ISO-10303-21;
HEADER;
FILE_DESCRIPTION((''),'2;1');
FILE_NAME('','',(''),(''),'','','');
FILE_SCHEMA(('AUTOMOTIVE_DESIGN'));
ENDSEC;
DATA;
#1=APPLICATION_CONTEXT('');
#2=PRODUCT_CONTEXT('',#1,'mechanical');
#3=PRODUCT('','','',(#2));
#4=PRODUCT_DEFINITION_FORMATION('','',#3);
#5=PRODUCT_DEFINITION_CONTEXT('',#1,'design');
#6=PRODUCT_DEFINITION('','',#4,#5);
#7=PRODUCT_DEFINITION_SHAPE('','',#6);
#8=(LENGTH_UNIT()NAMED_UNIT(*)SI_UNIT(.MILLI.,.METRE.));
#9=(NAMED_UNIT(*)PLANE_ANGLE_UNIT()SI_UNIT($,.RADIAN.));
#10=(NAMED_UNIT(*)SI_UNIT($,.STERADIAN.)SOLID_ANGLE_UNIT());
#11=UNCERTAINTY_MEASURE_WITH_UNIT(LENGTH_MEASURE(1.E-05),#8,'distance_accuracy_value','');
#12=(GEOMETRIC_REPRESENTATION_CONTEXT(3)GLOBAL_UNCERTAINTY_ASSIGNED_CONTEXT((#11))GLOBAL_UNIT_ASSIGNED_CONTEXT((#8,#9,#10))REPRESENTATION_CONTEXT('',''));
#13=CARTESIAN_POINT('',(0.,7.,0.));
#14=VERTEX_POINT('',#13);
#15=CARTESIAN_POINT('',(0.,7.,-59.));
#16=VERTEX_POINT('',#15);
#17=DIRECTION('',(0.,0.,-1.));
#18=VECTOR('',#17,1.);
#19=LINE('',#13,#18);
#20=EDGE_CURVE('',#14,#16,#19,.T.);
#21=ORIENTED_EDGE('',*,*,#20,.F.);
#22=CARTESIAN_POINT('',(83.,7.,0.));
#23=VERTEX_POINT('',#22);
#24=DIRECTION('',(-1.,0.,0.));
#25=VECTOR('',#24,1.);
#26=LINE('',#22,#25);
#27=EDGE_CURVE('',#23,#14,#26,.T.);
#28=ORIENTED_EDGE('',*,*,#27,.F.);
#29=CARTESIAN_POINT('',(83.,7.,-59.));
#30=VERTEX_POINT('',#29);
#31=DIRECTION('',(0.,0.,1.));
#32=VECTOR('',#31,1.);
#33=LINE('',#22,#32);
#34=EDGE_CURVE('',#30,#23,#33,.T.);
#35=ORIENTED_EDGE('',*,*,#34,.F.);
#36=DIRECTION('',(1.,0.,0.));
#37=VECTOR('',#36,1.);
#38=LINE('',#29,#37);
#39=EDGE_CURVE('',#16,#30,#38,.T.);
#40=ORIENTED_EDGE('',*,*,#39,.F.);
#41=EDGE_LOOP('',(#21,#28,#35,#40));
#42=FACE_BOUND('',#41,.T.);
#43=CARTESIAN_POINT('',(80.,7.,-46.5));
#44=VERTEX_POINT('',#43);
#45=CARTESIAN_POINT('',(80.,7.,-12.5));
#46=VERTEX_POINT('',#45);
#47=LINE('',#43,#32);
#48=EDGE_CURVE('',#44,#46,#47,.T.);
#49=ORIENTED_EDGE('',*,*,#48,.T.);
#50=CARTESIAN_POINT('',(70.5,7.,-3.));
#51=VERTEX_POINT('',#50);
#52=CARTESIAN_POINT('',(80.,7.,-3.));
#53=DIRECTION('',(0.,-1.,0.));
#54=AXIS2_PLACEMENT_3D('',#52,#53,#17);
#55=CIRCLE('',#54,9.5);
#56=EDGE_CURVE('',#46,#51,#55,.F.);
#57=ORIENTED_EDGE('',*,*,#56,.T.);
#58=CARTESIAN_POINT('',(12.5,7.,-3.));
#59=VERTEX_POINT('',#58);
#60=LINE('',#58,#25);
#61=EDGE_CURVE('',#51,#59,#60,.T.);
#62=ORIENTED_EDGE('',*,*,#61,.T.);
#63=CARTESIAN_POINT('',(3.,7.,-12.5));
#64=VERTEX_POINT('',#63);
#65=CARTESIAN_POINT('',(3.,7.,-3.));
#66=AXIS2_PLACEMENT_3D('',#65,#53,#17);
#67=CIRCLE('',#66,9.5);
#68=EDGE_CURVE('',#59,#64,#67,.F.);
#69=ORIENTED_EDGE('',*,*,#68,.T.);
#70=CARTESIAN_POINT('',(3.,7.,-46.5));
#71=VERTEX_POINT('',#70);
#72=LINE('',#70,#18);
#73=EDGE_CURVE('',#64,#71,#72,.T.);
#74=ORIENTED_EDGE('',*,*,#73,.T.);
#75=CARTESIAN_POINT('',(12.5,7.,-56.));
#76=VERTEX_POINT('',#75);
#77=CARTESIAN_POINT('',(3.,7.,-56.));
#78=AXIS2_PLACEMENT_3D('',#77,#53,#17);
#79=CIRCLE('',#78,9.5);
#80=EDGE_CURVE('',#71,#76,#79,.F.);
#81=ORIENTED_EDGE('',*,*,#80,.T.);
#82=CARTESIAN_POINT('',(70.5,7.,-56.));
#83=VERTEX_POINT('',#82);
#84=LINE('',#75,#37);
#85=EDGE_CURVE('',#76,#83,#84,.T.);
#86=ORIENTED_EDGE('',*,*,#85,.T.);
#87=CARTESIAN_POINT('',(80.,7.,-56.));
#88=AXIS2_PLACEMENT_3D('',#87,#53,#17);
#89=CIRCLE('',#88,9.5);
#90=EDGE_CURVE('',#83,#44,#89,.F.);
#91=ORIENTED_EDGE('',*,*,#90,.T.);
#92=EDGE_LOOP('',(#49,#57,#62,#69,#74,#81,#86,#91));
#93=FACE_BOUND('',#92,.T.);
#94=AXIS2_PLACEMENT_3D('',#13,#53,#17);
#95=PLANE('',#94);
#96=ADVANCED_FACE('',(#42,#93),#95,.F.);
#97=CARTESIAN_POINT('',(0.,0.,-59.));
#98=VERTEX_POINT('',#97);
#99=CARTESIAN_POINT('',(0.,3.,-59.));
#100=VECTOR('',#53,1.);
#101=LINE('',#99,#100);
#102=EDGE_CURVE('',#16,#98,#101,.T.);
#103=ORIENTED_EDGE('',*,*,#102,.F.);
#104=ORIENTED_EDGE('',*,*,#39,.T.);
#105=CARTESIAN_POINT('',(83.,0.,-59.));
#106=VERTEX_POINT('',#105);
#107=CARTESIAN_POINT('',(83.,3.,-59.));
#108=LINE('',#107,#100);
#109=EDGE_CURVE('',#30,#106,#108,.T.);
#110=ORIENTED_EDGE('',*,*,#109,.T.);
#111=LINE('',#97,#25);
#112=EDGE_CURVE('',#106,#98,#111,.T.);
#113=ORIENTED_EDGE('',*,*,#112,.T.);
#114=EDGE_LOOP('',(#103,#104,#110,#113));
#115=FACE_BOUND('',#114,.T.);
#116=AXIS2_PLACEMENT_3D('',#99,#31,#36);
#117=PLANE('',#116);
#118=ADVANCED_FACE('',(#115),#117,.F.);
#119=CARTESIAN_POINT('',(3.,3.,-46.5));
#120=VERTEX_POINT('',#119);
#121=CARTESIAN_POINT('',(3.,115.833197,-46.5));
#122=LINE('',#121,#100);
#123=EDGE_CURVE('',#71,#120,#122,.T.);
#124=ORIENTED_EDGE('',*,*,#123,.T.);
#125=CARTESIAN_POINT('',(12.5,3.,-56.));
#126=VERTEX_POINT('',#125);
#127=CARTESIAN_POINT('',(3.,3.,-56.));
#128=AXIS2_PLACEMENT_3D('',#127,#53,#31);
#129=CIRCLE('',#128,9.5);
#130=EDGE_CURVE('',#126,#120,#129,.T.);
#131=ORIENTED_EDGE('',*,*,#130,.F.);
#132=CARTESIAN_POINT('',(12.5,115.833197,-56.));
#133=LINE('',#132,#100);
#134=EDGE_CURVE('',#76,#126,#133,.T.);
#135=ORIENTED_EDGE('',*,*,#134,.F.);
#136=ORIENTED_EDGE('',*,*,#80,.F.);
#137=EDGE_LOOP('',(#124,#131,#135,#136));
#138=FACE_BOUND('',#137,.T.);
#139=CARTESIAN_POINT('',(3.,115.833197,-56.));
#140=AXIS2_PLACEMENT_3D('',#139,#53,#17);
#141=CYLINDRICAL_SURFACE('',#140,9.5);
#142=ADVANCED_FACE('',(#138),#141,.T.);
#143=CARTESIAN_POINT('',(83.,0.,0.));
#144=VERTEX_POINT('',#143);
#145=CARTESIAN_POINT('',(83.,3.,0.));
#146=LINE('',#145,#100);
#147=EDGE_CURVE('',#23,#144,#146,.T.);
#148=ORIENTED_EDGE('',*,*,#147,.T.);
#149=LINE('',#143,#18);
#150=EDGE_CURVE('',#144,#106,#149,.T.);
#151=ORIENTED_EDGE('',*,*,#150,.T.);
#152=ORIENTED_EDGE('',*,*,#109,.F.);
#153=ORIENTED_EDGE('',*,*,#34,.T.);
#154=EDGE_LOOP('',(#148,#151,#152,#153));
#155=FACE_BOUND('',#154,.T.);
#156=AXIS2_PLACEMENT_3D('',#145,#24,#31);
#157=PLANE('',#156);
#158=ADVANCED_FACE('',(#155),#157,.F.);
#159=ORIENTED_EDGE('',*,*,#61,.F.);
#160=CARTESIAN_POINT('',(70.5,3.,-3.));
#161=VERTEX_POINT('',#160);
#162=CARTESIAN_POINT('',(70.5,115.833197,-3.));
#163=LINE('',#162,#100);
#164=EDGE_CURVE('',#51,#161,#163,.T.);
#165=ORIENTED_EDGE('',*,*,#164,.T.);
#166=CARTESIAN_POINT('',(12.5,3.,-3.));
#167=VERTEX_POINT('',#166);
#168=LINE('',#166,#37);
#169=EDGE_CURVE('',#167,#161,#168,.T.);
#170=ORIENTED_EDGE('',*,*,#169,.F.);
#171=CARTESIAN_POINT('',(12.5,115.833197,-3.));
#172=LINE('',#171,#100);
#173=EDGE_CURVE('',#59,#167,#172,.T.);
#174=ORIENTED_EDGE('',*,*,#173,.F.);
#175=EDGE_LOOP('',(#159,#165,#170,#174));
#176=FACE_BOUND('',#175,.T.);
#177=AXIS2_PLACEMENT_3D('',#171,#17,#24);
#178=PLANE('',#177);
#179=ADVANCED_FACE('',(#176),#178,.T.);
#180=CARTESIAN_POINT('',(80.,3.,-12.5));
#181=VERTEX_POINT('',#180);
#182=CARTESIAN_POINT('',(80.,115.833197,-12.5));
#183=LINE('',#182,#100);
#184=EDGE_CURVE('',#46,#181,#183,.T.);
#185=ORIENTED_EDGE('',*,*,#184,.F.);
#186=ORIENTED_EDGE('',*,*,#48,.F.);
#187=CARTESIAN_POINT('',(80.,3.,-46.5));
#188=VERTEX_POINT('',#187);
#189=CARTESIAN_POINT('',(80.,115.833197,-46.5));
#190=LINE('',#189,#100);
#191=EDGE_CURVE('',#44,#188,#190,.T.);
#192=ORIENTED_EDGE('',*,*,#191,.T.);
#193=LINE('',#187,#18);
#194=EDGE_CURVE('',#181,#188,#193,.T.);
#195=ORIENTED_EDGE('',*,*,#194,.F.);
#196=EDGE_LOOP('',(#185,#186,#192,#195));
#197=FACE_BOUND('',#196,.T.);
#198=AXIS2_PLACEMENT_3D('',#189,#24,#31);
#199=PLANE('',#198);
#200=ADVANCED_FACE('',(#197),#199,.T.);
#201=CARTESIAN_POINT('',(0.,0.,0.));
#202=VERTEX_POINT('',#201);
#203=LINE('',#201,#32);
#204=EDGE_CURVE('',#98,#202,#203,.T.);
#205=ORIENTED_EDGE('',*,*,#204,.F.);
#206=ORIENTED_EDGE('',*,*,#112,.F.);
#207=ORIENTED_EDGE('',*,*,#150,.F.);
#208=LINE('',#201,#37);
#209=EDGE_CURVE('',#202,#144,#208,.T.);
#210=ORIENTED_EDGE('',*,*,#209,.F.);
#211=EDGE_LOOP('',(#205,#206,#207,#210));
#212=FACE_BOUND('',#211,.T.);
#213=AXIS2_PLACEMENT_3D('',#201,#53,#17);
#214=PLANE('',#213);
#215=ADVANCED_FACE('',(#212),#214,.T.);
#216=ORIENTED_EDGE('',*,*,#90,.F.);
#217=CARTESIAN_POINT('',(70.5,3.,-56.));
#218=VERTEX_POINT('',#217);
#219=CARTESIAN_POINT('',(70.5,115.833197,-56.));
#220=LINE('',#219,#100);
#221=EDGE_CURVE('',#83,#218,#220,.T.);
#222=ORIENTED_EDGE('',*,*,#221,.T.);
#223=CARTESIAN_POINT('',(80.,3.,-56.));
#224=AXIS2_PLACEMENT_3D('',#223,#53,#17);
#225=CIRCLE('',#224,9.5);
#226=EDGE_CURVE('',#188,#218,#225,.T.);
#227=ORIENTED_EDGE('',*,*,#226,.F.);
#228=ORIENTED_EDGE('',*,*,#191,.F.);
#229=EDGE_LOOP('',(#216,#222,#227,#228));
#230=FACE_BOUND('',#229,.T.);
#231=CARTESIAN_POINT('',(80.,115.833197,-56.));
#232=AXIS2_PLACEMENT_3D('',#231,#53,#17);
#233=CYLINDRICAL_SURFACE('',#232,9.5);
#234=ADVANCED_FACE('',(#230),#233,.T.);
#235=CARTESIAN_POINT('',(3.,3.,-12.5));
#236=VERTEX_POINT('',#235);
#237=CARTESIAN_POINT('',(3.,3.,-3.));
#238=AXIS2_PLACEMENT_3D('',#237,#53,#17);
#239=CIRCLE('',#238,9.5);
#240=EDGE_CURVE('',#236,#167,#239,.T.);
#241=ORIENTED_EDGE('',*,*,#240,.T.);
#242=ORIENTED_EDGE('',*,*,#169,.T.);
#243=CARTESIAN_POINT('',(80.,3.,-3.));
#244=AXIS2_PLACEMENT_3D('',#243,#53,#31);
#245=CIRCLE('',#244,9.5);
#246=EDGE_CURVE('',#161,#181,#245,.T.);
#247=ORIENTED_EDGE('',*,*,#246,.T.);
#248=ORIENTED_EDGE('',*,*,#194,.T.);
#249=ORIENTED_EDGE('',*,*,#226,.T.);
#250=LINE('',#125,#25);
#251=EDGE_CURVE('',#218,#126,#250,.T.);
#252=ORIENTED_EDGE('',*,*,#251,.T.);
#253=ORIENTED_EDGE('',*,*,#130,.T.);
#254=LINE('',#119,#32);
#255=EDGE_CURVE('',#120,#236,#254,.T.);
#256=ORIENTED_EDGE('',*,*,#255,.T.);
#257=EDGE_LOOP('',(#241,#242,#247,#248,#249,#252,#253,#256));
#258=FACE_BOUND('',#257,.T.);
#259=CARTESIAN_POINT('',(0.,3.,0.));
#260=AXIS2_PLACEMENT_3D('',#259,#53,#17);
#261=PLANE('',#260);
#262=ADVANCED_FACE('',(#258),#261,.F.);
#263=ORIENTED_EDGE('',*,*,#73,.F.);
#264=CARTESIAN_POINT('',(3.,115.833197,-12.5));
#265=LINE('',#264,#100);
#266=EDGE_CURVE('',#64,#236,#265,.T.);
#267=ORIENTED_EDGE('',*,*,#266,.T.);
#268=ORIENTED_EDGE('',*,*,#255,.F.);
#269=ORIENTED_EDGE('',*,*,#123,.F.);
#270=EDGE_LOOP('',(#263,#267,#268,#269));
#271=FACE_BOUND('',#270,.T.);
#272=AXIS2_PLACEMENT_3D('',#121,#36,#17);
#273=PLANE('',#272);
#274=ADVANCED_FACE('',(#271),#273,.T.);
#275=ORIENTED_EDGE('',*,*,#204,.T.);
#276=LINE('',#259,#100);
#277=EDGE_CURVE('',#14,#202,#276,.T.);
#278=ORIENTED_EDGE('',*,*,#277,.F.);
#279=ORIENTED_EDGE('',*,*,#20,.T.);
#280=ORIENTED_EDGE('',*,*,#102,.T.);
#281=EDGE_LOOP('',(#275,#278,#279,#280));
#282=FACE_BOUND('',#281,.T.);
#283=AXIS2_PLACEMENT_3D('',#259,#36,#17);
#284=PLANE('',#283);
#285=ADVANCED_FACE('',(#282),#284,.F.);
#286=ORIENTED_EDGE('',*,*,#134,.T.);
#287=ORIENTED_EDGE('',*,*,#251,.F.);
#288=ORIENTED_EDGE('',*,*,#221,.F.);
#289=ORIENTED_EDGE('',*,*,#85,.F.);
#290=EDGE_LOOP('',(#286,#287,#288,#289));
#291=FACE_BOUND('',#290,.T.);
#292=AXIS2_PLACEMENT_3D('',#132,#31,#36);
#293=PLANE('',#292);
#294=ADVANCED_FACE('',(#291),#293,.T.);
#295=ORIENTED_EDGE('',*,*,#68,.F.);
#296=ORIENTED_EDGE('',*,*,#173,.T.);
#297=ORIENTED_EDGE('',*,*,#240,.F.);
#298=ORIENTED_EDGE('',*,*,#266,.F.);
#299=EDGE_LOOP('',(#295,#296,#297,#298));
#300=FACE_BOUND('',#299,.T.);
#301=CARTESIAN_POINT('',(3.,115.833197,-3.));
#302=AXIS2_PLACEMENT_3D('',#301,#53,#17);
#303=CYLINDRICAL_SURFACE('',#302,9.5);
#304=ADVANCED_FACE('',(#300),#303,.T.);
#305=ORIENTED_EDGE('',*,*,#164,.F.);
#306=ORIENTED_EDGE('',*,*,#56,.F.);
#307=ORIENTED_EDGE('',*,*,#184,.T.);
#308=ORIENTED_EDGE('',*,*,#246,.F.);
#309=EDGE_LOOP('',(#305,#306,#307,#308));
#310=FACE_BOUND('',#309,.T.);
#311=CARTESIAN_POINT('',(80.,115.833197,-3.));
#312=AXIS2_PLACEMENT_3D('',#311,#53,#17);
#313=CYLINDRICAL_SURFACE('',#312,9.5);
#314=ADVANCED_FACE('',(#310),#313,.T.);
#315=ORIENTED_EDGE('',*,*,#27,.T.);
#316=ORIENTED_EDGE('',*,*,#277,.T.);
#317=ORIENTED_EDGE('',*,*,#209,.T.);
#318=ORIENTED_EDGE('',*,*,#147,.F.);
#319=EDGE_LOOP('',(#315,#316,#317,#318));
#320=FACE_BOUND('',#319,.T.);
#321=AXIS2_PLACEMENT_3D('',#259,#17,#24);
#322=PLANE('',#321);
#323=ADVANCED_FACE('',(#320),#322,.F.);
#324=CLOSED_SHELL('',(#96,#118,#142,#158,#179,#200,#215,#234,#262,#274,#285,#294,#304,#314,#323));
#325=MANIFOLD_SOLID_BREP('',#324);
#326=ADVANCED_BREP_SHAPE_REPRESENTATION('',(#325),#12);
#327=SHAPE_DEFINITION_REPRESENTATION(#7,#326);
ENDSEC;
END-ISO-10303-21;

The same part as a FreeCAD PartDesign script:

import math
import FreeCAD as App
import Part
import Sketcher

V = App.Vector


def add_polygon(sketch, points):
    """Adds a closed chain of lines whose ends are joined by coincident constraints."""
    first, n = sketch.GeometryCount, len(points)
    for a, b in zip(points, points[1:] + points[:1]):
        sketch.addGeometry(Part.LineSegment(App.Vector(*a, 0), App.Vector(*b, 0)), False)
    for i in range(n):
        sketch.addConstraint(Sketcher.Constraint("Coincident", first + i, 2, first + (i + 1) % n, 1))

doc = App.newDocument("Part")
body = doc.addObject("PartDesign::Body", "Body")

# Sketch on XZ plane
sketch1 = body.newObject("Sketcher::SketchObject", "Sketch")
sketch1.AttachmentSupport = (doc.getObject("XZ_Plane"), [""])
sketch1.MapMode = "FlatFace"
add_polygon(sketch1, [(0, -59), (0, 0), (83, 0), (83, -59)])  # lines 0-3
sketch1.addConstraint([
    Sketcher.Constraint("Vertical", 0),
    Sketcher.Constraint("Horizontal", 1),
    Sketcher.Constraint("Vertical", 2),
    Sketcher.Constraint("Horizontal", 3),
    Sketcher.Constraint("Coincident", 0, 2, -1, 1),
    Sketcher.Constraint("DistanceX", 1, 1, 1, 2, 83.0),
    Sketcher.Constraint("DistanceY", 0, 1, 0, 2, 59.0),
])
pad1 = body.newObject("PartDesign::Pad", "Pad")
pad1.Profile = sketch1
pad1.Length = 3
pad1.Reversed = True

# Sketch on XZ plane
sketch2 = body.newObject("Sketcher::SketchObject", "Sketch001")
sketch2.AttachmentSupport = (doc.getObject("XZ_Plane"), [""])
sketch2.MapMode = "FlatFace"
sketch2.AttachmentOffset = App.Placement(V(0, 0, -3), App.Rotation())
add_polygon(sketch2, [(0, -59), (0, 0), (83, 0), (83, -59)])  # lines 0-3
sketch2.addGeometry(Part.LineSegment(V(3, -12, 0), V(3, -46, 0)), False)  # 4
sketch2.addGeometry(Part.ArcOfCircle(Part.Circle(V(3, -56, 0), V(0, 0, 1), 10), math.radians(0), math.radians(90)), False)  # 5
sketch2.addGeometry(Part.LineSegment(V(12, -56, 0), V(70, -56, 0)), False)  # 6
sketch2.addGeometry(Part.ArcOfCircle(Part.Circle(V(80, -56, 0), V(0, 0, 1), 10), math.radians(90), math.radians(180)), False)  # 7
sketch2.addGeometry(Part.LineSegment(V(80, -46, 0), V(80, -12, 0)), False)  # 8
sketch2.addGeometry(Part.ArcOfCircle(Part.Circle(V(80, -3, 0), V(0, 0, 1), 10), math.radians(-180), math.radians(-90)), False)  # 9
sketch2.addGeometry(Part.LineSegment(V(70, -3, 0), V(12, -3, 0)), False)  # 10
sketch2.addGeometry(Part.ArcOfCircle(Part.Circle(V(3, -3, 0), V(0, 0, 1), 10), math.radians(-90), math.radians(0)), False)  # 11
sketch2.addConstraint([
    Sketcher.Constraint("Coincident", 4, 2, 5, 2),
    Sketcher.Constraint("Coincident", 5, 1, 6, 1),
    Sketcher.Constraint("Coincident", 6, 2, 7, 2),
    Sketcher.Constraint("Coincident", 7, 1, 8, 1),
    Sketcher.Constraint("Coincident", 8, 2, 9, 2),
    Sketcher.Constraint("Coincident", 9, 1, 10, 1),
    Sketcher.Constraint("Coincident", 10, 2, 11, 2),
    Sketcher.Constraint("Coincident", 11, 1, 4, 1),
    Sketcher.Constraint("Vertical", 0),
    Sketcher.Constraint("Horizontal", 1),
    Sketcher.Constraint("Vertical", 2),
    Sketcher.Constraint("Horizontal", 3),
    Sketcher.Constraint("Vertical", 4),
    Sketcher.Constraint("Horizontal", 6),
    Sketcher.Constraint("Vertical", 8),
    Sketcher.Constraint("Horizontal", 10),
    Sketcher.Constraint("Coincident", 0, 2, -1, 1),
    Sketcher.Constraint("Equal", 5, 7),
    Sketcher.Constraint("Equal", 7, 9),
    Sketcher.Constraint("Equal", 9, 11),
    Sketcher.Constraint("Horizontal", 5, 3, 7, 3),
    Sketcher.Constraint("Horizontal", 9, 3, 11, 3),
    Sketcher.Constraint("Horizontal", 7, 3, 5, 1),
    Sketcher.Constraint("Horizontal", 11, 3, 9, 1),
    Sketcher.Constraint("Vertical", 7, 3, 9, 3),
    Sketcher.Constraint("Vertical", 5, 3, 11, 3),
    Sketcher.Constraint("Vertical", 11, 3, 4, 2),
    Sketcher.Constraint("Vertical", 9, 3, 7, 1),
    Sketcher.Constraint("Radius", 5, 9.5),
    Sketcher.Constraint("DistanceX", 1, 1, 1, 2, 83.0),
    Sketcher.Constraint("DistanceX", 6, 1, 6, 2, 58.0),
    Sketcher.Constraint("DistanceY", 0, 1, 0, 2, 59.0),
    Sketcher.Constraint("DistanceY", 4, 2, 4, 1, 34.0),
    Sketcher.Constraint("DistanceX", -1, 1, 5, 3, 3.0),
    Sketcher.Constraint("DistanceY", 5, 3, -1, 1, 56.0),
])
pad2 = body.newObject("PartDesign::Pad", "Pad001")
pad2.Profile = sketch2
pad2.Length = 4
pad2.Reversed = True

doc.recompute()
